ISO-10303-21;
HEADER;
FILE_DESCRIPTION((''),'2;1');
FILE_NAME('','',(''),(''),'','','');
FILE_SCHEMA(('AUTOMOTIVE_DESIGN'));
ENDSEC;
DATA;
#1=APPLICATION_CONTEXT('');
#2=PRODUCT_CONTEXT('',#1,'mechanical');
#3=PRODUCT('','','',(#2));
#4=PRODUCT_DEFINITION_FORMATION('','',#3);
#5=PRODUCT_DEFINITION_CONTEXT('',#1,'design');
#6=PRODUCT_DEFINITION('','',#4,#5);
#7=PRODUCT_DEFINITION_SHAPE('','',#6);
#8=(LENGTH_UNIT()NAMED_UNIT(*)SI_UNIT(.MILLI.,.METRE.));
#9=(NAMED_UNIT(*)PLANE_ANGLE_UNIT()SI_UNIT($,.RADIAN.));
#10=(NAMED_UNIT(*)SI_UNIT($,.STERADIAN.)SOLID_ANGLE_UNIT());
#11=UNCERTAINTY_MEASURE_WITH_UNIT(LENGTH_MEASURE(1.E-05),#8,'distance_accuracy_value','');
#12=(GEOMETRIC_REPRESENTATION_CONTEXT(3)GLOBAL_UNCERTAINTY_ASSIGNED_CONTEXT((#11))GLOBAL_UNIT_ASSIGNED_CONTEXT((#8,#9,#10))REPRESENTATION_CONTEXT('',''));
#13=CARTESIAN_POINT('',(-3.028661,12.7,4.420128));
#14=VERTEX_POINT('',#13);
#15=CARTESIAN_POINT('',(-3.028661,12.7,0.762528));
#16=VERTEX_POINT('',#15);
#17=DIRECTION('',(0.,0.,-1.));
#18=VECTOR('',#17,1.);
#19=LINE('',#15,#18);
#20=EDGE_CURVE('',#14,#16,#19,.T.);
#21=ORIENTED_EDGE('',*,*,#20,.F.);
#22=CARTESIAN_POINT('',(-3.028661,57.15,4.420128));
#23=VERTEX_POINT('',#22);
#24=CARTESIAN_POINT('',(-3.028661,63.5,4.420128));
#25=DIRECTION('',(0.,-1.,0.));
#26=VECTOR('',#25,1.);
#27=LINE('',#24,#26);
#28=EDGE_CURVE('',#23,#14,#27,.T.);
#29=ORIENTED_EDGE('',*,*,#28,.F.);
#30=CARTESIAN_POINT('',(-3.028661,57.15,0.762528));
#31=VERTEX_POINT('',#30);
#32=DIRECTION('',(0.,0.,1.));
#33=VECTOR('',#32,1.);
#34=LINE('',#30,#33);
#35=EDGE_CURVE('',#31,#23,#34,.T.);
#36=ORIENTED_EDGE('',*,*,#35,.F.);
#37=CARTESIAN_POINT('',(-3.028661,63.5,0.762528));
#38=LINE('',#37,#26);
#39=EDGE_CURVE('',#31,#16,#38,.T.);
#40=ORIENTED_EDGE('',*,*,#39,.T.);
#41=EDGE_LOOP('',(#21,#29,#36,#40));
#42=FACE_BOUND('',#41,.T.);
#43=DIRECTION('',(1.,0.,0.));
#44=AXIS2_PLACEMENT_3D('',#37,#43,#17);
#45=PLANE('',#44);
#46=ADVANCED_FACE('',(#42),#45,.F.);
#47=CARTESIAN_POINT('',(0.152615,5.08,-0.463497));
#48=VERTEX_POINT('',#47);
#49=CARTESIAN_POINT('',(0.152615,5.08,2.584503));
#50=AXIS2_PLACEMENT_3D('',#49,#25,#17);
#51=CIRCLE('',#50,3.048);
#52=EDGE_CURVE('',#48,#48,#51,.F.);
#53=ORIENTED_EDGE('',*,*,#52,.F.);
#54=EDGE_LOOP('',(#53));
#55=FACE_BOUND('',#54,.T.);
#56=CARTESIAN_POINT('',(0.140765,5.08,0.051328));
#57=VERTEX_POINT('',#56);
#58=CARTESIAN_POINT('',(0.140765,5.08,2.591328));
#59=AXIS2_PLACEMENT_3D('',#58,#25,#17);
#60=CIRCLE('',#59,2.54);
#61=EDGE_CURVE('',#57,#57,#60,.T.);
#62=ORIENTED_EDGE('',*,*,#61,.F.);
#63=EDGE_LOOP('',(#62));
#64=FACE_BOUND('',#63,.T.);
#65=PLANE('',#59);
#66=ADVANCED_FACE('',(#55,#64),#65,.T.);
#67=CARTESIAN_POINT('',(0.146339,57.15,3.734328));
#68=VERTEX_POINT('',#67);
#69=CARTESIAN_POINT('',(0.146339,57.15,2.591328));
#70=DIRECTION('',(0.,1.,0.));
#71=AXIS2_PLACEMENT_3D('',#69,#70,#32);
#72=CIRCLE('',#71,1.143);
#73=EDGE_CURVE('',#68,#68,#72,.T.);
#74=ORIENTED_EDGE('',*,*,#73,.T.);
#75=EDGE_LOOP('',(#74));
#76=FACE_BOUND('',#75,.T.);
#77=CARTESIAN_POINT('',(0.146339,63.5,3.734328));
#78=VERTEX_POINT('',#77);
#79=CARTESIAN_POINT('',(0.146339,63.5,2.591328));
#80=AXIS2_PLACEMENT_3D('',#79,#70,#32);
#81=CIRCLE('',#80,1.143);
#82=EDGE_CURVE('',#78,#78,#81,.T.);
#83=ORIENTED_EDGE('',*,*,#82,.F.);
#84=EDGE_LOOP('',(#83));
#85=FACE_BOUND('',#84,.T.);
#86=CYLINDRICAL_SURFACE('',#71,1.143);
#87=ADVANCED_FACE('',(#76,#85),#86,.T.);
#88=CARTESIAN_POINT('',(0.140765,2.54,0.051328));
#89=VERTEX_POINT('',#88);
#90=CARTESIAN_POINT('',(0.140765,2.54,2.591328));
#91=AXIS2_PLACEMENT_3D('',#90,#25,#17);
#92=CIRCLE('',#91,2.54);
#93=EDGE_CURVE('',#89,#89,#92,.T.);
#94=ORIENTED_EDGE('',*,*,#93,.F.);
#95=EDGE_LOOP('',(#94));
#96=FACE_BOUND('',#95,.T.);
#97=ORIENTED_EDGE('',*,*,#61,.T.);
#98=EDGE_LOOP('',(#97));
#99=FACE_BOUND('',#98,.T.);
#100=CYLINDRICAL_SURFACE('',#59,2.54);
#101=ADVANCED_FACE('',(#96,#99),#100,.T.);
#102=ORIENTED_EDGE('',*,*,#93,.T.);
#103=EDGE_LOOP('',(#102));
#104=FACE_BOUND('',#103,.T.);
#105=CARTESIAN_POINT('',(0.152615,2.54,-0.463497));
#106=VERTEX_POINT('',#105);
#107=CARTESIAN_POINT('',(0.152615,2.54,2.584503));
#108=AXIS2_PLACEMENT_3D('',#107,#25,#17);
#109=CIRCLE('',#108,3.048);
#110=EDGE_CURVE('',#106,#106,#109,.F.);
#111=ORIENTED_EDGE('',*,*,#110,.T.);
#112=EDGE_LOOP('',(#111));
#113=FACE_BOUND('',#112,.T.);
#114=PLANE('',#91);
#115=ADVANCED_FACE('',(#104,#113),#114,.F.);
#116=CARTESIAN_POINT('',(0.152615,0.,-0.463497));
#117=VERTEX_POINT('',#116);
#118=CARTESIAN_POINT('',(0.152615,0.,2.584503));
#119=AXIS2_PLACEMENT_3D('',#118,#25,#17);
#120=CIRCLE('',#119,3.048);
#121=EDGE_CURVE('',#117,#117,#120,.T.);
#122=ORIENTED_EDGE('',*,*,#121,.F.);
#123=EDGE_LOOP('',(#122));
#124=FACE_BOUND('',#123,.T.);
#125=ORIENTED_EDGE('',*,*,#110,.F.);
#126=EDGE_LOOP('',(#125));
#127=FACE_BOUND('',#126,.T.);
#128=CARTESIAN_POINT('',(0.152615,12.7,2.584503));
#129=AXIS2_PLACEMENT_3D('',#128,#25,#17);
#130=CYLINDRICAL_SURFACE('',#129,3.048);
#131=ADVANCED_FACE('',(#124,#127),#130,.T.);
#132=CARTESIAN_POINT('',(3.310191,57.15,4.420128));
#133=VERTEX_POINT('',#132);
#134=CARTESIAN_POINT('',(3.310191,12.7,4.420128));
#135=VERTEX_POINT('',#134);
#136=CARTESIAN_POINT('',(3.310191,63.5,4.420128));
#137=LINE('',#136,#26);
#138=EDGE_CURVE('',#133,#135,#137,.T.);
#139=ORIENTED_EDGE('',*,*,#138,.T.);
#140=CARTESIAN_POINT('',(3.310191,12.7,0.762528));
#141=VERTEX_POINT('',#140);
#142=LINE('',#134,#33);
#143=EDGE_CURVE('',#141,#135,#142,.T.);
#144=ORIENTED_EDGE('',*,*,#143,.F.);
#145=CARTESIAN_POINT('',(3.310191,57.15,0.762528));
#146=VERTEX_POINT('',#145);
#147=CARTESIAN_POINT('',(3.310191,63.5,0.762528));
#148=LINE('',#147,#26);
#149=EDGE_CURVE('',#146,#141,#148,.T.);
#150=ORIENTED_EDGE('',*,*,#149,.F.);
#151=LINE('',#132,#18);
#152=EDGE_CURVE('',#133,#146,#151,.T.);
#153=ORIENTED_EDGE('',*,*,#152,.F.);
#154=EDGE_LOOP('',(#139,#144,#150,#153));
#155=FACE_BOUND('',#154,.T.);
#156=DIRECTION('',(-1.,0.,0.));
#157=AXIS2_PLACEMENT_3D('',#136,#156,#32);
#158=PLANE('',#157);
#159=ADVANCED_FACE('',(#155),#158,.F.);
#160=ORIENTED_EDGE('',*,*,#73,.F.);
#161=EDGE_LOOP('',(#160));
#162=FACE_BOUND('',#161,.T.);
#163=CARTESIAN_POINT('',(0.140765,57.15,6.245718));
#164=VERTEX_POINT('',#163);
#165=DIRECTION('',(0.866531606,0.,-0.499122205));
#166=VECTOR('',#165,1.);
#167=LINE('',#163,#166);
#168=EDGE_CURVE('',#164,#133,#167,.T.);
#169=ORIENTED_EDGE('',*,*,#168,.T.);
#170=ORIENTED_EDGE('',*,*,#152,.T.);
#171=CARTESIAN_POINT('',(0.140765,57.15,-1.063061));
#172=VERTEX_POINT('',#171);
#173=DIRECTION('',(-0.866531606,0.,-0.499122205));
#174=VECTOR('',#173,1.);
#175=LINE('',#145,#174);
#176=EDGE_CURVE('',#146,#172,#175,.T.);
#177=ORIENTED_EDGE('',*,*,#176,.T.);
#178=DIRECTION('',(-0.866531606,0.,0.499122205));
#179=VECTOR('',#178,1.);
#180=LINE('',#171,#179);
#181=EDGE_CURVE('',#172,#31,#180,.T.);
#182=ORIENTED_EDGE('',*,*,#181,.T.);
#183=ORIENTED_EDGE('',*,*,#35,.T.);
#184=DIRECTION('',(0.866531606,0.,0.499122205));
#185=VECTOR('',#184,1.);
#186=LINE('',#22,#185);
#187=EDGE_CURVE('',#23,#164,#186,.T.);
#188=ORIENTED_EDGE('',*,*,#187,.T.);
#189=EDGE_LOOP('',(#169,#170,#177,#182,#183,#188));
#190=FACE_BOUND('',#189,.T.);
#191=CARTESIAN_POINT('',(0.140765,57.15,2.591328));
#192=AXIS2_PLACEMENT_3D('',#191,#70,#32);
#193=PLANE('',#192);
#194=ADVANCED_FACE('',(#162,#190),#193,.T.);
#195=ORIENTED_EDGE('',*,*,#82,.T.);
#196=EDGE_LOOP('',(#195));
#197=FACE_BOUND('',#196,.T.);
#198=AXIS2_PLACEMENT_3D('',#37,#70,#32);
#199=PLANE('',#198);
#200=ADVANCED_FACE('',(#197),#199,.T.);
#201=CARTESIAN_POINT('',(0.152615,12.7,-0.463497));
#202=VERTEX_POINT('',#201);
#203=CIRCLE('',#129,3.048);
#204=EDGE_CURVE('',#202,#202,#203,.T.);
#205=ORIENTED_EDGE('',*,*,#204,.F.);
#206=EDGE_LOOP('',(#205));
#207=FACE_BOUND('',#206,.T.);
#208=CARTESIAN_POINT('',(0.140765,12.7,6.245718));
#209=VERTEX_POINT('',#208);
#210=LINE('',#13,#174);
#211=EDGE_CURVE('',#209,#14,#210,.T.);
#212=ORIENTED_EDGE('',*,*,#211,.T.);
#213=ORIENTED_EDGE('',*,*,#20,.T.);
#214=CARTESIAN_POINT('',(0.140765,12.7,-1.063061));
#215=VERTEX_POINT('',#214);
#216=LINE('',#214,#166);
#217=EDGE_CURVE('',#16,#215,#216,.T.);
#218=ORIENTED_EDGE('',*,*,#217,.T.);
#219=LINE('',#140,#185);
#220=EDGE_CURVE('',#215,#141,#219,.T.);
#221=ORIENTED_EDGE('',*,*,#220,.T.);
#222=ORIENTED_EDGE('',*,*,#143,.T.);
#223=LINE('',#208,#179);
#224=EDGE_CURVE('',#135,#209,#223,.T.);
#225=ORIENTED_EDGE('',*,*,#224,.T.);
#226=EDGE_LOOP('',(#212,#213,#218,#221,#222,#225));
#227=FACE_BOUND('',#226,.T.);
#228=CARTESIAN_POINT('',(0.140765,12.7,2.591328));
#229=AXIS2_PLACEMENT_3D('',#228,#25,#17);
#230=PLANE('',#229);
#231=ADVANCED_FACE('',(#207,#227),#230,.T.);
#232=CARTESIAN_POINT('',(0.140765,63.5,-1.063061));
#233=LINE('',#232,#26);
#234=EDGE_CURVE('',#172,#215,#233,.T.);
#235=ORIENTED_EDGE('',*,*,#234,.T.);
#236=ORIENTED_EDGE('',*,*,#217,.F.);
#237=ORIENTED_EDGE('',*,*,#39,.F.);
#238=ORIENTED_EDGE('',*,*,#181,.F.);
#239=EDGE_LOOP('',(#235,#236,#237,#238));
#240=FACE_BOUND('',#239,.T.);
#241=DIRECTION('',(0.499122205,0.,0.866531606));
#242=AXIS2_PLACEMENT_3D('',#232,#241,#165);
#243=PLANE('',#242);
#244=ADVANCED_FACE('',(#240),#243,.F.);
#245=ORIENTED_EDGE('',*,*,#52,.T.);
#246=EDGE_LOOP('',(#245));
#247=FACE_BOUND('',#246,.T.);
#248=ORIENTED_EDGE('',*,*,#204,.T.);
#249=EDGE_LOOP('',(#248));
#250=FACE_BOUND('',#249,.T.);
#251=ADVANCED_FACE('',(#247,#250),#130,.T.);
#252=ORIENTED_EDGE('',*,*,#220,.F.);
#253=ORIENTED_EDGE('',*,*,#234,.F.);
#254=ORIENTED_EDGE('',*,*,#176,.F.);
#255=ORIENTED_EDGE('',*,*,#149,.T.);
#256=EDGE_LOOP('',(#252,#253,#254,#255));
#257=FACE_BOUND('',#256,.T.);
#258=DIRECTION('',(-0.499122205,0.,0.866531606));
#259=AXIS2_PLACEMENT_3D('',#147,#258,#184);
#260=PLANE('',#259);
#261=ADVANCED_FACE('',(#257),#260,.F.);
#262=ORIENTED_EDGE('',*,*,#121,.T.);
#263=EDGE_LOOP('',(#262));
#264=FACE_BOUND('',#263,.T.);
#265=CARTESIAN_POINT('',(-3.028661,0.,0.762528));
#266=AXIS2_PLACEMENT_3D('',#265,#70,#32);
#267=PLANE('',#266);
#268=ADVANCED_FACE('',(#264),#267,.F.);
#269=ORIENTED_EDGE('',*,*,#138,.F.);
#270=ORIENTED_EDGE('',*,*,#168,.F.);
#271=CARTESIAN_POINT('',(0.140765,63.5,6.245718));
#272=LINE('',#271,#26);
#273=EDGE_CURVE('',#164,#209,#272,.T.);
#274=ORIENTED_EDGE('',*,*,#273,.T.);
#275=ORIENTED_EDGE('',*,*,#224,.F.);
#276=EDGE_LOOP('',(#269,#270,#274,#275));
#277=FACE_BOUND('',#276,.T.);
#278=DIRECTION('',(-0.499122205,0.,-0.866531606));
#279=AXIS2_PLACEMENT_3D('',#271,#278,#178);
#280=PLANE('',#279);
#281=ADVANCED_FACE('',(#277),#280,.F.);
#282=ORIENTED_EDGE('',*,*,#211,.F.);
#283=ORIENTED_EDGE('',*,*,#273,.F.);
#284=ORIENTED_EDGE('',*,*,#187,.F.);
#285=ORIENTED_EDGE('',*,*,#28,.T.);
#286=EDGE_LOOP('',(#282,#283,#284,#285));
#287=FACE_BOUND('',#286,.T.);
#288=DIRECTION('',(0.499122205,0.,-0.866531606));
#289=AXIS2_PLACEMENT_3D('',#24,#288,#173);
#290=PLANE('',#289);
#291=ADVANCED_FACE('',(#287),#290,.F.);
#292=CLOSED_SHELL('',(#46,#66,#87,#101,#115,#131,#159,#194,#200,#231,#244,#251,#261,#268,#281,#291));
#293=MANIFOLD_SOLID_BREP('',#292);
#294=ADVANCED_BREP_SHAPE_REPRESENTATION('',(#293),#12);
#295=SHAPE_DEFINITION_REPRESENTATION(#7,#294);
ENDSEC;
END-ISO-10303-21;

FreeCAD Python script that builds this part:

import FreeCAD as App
import Part
import Sketcher

V = App.Vector
Q = App.Units.Quantity

doc = App.newDocument("Part")
body = doc.addObject("PartDesign::Body", "Body")

sketch1 = doc.addObject("Sketcher::SketchObject", "Sketch")
body.addObject(sketch1)
sketch1.AttachmentSupport = (doc.XZ_Plane, [""])
sketch1.MapMode = "FlatFace"
sketch1.addGeometry([
    Part.LineSegment(V(3.3, 4.4, 0), V(3.3, 0.8, 0)),
    Part.LineSegment(V(3.3, 0.8, 0), V(0.1, -1.1, 0)),
    Part.LineSegment(V(0.1, -1.1, 0), V(-3, 0.8, 0)),
    Part.LineSegment(V(-3, 0.8, 0), V(-3, 4.4, 0)),
    Part.LineSegment(V(-3, 4.4, 0), V(0.1, 6.2, 0)),
    Part.LineSegment(V(0.1, 6.2, 0), V(3.3, 4.4, 0)),
], False)
sketch1.addConstraint([
    Sketcher.Constraint("Coincident", 0, 2, 1, 1),
    Sketcher.Constraint("Coincident", 1, 2, 2, 1),
    Sketcher.Constraint("Coincident", 2, 2, 3, 1),
    Sketcher.Constraint("Coincident", 3, 2, 4, 1),
    Sketcher.Constraint("Coincident", 4, 2, 5, 1),
    Sketcher.Constraint("Coincident", 5, 2, 0, 1),
    Sketcher.Constraint("Vertical", 0),
    Sketcher.Constraint("Vertical", 3),
    Sketcher.Constraint("Parallel", 1, 4),
    Sketcher.Constraint("Parallel", 2, 5),
    Sketcher.Constraint("Horizontal", 0, 2, 2, 2),
    Sketcher.Constraint("Horizontal", 3, 2, 5, 2),
    Sketcher.Constraint("Vertical", 1, 2, 4, 2),
    Sketcher.Constraint("DistanceY", 0, 2, 0, 1, Q("0.144 in")),
    Sketcher.Constraint("Distance", 1, Q("0.144 in")),
    Sketcher.Constraint("DistanceX", -1, 1, 0, 2, 3.310191),
    Sketcher.Constraint("DistanceY", -1, 1, 0, 2, 0.762528),
    Sketcher.Constraint("DistanceY", 1, 2, -1, 1, 1.063061),
])
pad1 = doc.addObject("PartDesign::Pad", "Pad")
body.addObject(pad1)
pad1.Profile = sketch1
pad1.Length = Q("2.5 in")
pad1.Reversed = True

sketch2 = doc.addObject("Sketcher::SketchObject", "Sketch001")
body.addObject(sketch2)
sketch2.AttachmentSupport = (doc.XZ_Plane, [""])
sketch2.MapMode = "FlatFace"
sketch2.AttachmentOffset = App.Placement(V(0, 0, -2.5 * 25.4), App.Rotation())
sketch2.addGeometry([
    Part.LineSegment(V(-10.5, -8.5, 0), V(-10.5, 13.7, 0)),
    Part.LineSegment(V(-10.5, 13.7, 0), V(10.7, 13.7, 0)),
    Part.LineSegment(V(10.7, 13.7, 0), V(10.7, -8.5, 0)),
    Part.LineSegment(V(10.7, -8.5, 0), V(-10.5, -8.5, 0)),
    Part.Circle(V(0.1, 2.6, 0), V(0, 0, 1), 1.1),
], False)
sketch2.addConstraint([
    Sketcher.Constraint("Coincident", 0, 2, 1, 1),
    Sketcher.Constraint("Coincident", 1, 2, 2, 1),
    Sketcher.Constraint("Coincident", 2, 2, 3, 1),
    Sketcher.Constraint("Coincident", 3, 2, 0, 1),
    Sketcher.Constraint("Vertical", 0),
    Sketcher.Constraint("Horizontal", 1),
    Sketcher.Constraint("Vertical", 2),
    Sketcher.Constraint("Horizontal", 3),
    Sketcher.Constraint("Diameter", 4, Q("0.09 in")),
    Sketcher.Constraint("DistanceX", 1, 1, 1, 2, 21.185),
    Sketcher.Constraint("DistanceY", 0, 1, 0, 2, 22.155),
    Sketcher.Constraint("DistanceX", 0, 2, -1, 1, 10.452),
    Sketcher.Constraint("DistanceY", -1, 1, 0, 2, 13.669),
    Sketcher.Constraint("DistanceX", -1, 1, 4, 3, 0.146339),
    Sketcher.Constraint("DistanceY", -1, 1, 4, 3, 2.591328),
])
pocket1 = doc.addObject("PartDesign::Pocket", "Pocket")
body.addObject(pocket1)
pocket1.Profile = sketch2
pocket1.Length = Q("0.25 in")
pocket1.Reversed = True

sketch3 = doc.addObject("Sketcher::SketchObject", "Sketch002")
body.addObject(sketch3)
sketch3.AttachmentSupport = (doc.XZ_Plane, [""])
sketch3.MapMode = "FlatFace"
sketch3.addGeometry([
    Part.LineSegment(V(-10.5, 13.7, 0), V(-10.5, -8.5, 0)),
    Part.LineSegment(V(-10.5, -8.5, 0), V(10.7, -8.5, 0)),
    Part.LineSegment(V(10.7, -8.5, 0), V(10.7, 13.7, 0)),
    Part.LineSegment(V(10.7, 13.7, 0), V(-10.5, 13.7, 0)),
    Part.Circle(V(0.2, 2.6, 0), V(0, 0, 1), 3),
], False)
sketch3.addConstraint([
    Sketcher.Constraint("Coincident", 0, 2, 1, 1),
    Sketcher.Constraint("Coincident", 1, 2, 2, 1),
    Sketcher.Constraint("Coincident", 2, 2, 3, 1),
    Sketcher.Constraint("Coincident", 3, 2, 0, 1),
    Sketcher.Constraint("Vertical", 0),
    Sketcher.Constraint("Horizontal", 1),
    Sketcher.Constraint("Vertical", 2),
    Sketcher.Constraint("Horizontal", 3),
    Sketcher.Constraint("Diameter", 4, Q("0.24 in")),
    Sketcher.Constraint("DistanceX", 1, 1, 1, 2, 21.185),
    Sketcher.Constraint("DistanceY", 0, 2, 0, 1, 22.155),
    Sketcher.Constraint("DistanceX", 0, 2, -1, 1, 10.452),
    Sketcher.Constraint("DistanceY", 0, 2, -1, 1, 8.486),
    Sketcher.Constraint("DistanceX", -1, 1, 4, 3, 0.152615),
    Sketcher.Constraint("DistanceY", -1, 1, 4, 3, 2.584503),
])
pocket2 = doc.addObject("PartDesign::Pocket", "Pocket001")
body.addObject(pocket2)
pocket2.Profile = sketch3
pocket2.Length = Q("0.5 in")

sketch4 = doc.addObject("Sketcher::SketchObject", "Sketch003")
body.addObject(sketch4)
sketch4.AttachmentSupport = (doc.XZ_Plane, [""])
sketch4.MapMode = "FlatFace"
sketch4.AttachmentOffset = App.Placement(V(0, 0, -0.1 * 25.4), App.Rotation())
sketch4.addGeometry([
    Part.LineSegment(V(10.7, -8.5, 0), V(10.7, 13.7, 0)),
    Part.LineSegment(V(10.7, 13.7, 0), V(-10.5, 13.7, 0)),
    Part.LineSegment(V(-10.5, 13.7, 0), V(-10.5, -8.5, 0)),
    Part.LineSegment(V(-10.5, -8.5, 0), V(10.7, -8.5, 0)),
    Part.Circle(V(0.1, 2.6, 0), V(0, 0, 1), 2.5),
], False)
sketch4.addConstraint([
    Sketcher.Constraint("Coincident", 0, 2, 1, 1),
    Sketcher.Constraint("Coincident", 1, 2, 2, 1),
    Sketcher.Constraint("Coincident", 2, 2, 3, 1),
    Sketcher.Constraint("Coincident", 3, 2, 0, 1),
    Sketcher.Constraint("Vertical", 0),
    Sketcher.Constraint("Horizontal", 1),
    Sketcher.Constraint("Vertical", 2),
    Sketcher.Constraint("Horizontal", 3),
    Sketcher.Constraint("Diameter", 4, Q("0.2 in")),
    Sketcher.Constraint("DistanceX", 1, 2, 1, 1, 21.185),
    Sketcher.Constraint("DistanceY", 0, 1, 0, 2, 22.155),
    Sketcher.Constraint("DistanceX", -1, 1, 0, 2, 10.733),
    Sketcher.Constraint("DistanceY", -1, 1, 0, 2, 13.669),
    Sketcher.Constraint("DistanceY", -1, 1, 4, 3, 2.591328),
    Sketcher.Constraint("DistanceX", -1, 1, 4, 3, 0.140765),
])
pocket3 = doc.addObject("PartDesign::Pocket", "Pocket002")
body.addObject(pocket3)
pocket3.Profile = sketch4
pocket3.Length = Q("0.1 in")

doc.recompute()
